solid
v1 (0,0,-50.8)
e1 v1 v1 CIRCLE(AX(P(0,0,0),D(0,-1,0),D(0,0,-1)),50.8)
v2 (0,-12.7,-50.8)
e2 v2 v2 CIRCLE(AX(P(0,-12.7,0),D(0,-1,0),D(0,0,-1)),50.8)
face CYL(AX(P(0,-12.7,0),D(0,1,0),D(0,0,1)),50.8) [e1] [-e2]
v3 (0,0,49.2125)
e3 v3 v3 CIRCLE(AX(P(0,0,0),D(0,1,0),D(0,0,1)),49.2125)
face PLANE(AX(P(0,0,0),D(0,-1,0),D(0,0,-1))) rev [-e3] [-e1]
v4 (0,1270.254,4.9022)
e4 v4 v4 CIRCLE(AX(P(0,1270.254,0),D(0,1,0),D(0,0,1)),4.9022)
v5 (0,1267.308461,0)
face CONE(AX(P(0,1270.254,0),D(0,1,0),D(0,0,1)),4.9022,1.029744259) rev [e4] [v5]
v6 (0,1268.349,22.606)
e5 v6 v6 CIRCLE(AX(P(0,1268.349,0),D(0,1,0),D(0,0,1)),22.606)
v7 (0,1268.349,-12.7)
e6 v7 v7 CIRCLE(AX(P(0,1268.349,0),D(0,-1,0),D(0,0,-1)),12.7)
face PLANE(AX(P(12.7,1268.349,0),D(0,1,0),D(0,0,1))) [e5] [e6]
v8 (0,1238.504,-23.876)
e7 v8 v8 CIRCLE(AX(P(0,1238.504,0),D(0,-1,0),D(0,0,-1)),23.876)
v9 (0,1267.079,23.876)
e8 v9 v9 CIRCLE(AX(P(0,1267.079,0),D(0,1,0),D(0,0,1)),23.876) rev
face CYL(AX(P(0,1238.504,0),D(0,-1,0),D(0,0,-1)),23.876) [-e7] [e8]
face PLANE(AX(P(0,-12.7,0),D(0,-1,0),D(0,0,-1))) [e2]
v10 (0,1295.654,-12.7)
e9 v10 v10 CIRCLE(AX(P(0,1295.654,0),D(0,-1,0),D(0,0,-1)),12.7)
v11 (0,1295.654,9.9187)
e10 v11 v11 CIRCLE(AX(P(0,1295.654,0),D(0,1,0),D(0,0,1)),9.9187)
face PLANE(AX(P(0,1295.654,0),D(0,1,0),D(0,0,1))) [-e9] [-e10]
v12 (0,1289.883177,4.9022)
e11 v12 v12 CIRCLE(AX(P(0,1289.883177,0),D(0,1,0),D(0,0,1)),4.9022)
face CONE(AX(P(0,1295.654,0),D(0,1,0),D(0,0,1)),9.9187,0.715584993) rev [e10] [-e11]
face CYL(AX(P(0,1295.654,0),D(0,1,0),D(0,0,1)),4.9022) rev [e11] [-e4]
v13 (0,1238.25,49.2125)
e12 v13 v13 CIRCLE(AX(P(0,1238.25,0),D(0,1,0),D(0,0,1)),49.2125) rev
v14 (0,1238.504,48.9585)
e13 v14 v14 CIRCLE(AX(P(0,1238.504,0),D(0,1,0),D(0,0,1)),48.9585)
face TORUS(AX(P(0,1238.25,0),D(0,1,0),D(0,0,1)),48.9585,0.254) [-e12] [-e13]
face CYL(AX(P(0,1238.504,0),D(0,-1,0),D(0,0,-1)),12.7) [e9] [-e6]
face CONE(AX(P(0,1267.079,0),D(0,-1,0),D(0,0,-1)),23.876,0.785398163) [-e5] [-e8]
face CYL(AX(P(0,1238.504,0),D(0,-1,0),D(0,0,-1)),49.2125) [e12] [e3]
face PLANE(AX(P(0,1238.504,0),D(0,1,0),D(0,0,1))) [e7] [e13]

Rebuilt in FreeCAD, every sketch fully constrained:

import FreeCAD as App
import Part
import Sketcher
Q = App.Units.Quantity


def edges_at(feature, points):
    """Names of the edges that pass closest to the given points."""
    edges = feature.Shape.Edges
    near = lambda p: min(range(len(edges)), key=lambda i: edges[i].distToShape(Part.Vertex(*p))[0])
    return sorted({f"Edge{near(p) + 1}" for p in points})

doc = App.newDocument("Part")
body = doc.addObject("PartDesign::Body", "Body")

sketch1 = body.newObject("Sketcher::SketchObject", "Sketch")
sketch1.AttachmentSupport = (doc.getObject("XZ_Plane"), [""])
sketch1.MapMode = "FlatFace"
sketch1.addGeometry(Part.Circle(App.Vector(0, 0, 0), App.Vector(0, 0, 1), 49), False)
sketch1.addConstraint(Sketcher.Constraint("Coincident", 0, 3, -1, 1))
sketch1.addConstraint(Sketcher.Constraint("Diameter", 0, Q("3.875 in")))
pad1 = body.newObject("PartDesign::Pad", "Pad")
pad1.Profile = sketch1
pad1.Length = Q("48.76 in")
pad1.Reversed = True

sketch2 = body.newObject("Sketcher::SketchObject", "Sketch001")
sketch2.AttachmentSupport = (doc.getObject("XY_Plane"), [""])
sketch2.MapMode = "FlatFace"
sketch2.addGeometry(Part.LineSegment(App.Vector(0, 1296, 0), App.Vector(0, 1239, 0)), False)
sketch2.addGeometry(Part.LineSegment(App.Vector(0, 1239, 0), App.Vector(24, 1239, 0)), False)
sketch2.addGeometry(Part.LineSegment(App.Vector(24, 1239, 0), App.Vector(24, 1268, 0)), False)
sketch2.addGeometry(Part.LineSegment(App.Vector(24, 1268, 0), App.Vector(13, 1268, 0)), False)
sketch2.addGeometry(Part.LineSegment(App.Vector(13, 1268, 0), App.Vector(13, 1296, 0)), False)
sketch2.addGeometry(Part.LineSegment(App.Vector(13, 1296, 0), App.Vector(0, 1296, 0)), False)
sketch2.addConstraint(Sketcher.Constraint("Coincident", 0, 2, 1, 1))
sketch2.addConstraint(Sketcher.Constraint("Coincident", 1, 2, 2, 1))
sketch2.addConstraint(Sketcher.Constraint("Coincident", 2, 2, 3, 1))
sketch2.addConstraint(Sketcher.Constraint("Coincident", 3, 2, 4, 1))
sketch2.addConstraint(Sketcher.Constraint("Coincident", 4, 2, 5, 1))
sketch2.addConstraint(Sketcher.Constraint("Coincident", 5, 2, 0, 1))
sketch2.addConstraint(Sketcher.Constraint("Vertical", 0))
sketch2.addConstraint(Sketcher.Constraint("Horizontal", 1))
sketch2.addConstraint(Sketcher.Constraint("Vertical", 2))
sketch2.addConstraint(Sketcher.Constraint("Horizontal", 3))
sketch2.addConstraint(Sketcher.Constraint("Vertical", 4))
sketch2.addConstraint(Sketcher.Constraint("Horizontal", 5))
sketch2.addConstraint(Sketcher.Constraint("PointOnObject", 0, 2, -2))
sketch2.addConstraint(Sketcher.Constraint("DistanceX", 5, 2, 5, 1, Q("0.5 in")))
sketch2.addConstraint(Sketcher.Constraint("DistanceX", 1, 1, 1, 2, Q("0.94 in")))
sketch2.addConstraint(Sketcher.Constraint("DistanceY", 0, 2, 0, 1, Q("2.25 in")))
sketch2.addConstraint(Sketcher.Constraint("DistanceY", 2, 1, 2, 2, Q("1.175 in")))
sketch2.addConstraint(Sketcher.Constraint("DistanceY", -1, 1, 0, 2, Q("48.76 in")))
revolution = body.newObject("PartDesign::Revolution", "Revolution")
revolution.Profile = sketch2
revolution.ReferenceAxis = (sketch2, ["V_Axis"])
revolution.Angle = 360

sketch3 = body.newObject("Sketcher::SketchObject", "Sketch002")
sketch3.AttachmentSupport = (doc.getObject("XZ_Plane"), [""])
sketch3.MapMode = "FlatFace"
sketch3.addGeometry(Part.Circle(App.Vector(0, 0, 0), App.Vector(0, 0, 1), 51), False)
sketch3.addConstraint(Sketcher.Constraint("Coincident", 0, 3, -1, 1))
sketch3.addConstraint(Sketcher.Constraint("Diameter", 0, Q("4 in")))
pad2 = body.newObject("PartDesign::Pad", "Pad001")
pad2.Profile = sketch3
pad2.Length = Q("0.5 in")
doc.recompute()

chamfer = body.newObject("PartDesign::Chamfer", "Chamfer")
chamfer.Base = (pad2, edges_at(pad2, [(-23.876, 1268.349, 0)]))
chamfer.Size = Q("0.05 in")
doc.recompute()

fillet = body.newObject("PartDesign::Fillet", "Fillet")
fillet.Base = (chamfer, edges_at(chamfer, [(-49.212, 1238.504, 0)]))
fillet.Radius = Q("0.01 in")

sketch4 = body.newObject("Sketcher::SketchObject", "Sketch003")
sketch4.AttachmentSupport = (doc.getObject("XZ_Plane"), [""])
sketch4.MapMode = "FlatFace"
sketch4.AttachmentOffset = App.Placement(App.Vector(0, 0, -51.01 * 25.4), App.Rotation())
sketch4.addGeometry(Part.Circle(App.Vector(0, 0, 0), App.Vector(0, 0, 1), 4.9), False)
sketch4.addConstraint(Sketcher.Constraint("Coincident", 0, 3, -1, 1))
sketch4.addConstraint(Sketcher.Constraint("Diameter", 0, Q("0.386 in")))
doc.recompute()
hole = body.newObject("PartDesign::Hole", "Hole")
hole.Profile = sketch4
hole.ThreadType = "None"
hole.Diameter = Q("0.386 in")
hole.DepthType = "Dimension"
hole.Depth = Q("1 in")
hole.DrillPoint = "Angled"
hole.DrillPointAngle = 118
hole.HoleCutType = "Countersink"
hole.HoleCutDiameter = Q("0.781 in")
hole.HoleCutCountersinkAngle = 82
hole.Reversed = True

doc.recompute()
